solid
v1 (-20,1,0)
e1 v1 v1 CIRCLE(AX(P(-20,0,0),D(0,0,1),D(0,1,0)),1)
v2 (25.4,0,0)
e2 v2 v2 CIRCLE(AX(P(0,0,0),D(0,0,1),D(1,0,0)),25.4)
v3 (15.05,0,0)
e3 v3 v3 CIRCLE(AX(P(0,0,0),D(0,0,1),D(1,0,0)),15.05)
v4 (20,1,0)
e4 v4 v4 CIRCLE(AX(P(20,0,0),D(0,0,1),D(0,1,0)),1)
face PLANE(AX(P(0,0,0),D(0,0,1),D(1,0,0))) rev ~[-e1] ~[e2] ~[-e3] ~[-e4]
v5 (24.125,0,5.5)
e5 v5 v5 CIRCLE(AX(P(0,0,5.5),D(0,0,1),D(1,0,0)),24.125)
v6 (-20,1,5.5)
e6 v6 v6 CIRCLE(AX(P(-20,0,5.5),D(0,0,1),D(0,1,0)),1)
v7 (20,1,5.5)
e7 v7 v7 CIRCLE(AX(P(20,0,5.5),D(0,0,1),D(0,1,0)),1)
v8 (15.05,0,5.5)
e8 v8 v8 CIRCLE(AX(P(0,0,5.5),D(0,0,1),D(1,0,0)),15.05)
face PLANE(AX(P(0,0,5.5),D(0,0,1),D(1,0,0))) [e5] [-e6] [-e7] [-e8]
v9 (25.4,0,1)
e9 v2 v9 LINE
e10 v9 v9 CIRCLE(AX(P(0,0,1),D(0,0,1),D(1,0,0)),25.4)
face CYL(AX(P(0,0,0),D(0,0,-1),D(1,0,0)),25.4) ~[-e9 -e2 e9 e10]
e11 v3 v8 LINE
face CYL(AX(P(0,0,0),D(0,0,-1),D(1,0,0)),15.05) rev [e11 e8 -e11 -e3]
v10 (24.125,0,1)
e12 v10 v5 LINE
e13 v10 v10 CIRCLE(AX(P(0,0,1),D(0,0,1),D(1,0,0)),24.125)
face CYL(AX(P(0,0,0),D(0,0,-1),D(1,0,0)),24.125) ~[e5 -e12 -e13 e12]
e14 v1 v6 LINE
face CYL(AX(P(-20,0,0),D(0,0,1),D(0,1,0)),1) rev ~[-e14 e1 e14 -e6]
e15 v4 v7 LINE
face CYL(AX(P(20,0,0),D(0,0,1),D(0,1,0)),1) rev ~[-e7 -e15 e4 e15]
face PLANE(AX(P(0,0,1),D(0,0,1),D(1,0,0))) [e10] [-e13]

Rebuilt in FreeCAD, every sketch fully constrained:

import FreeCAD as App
import Part
import Sketcher
Q = App.Units.Quantity

doc = App.newDocument("Part")
body = doc.addObject("PartDesign::Body", "Body")

# Sketch on XY plane
sketch1 = doc.addObject("Sketcher::SketchObject", "Sketch")
body.addObject(sketch1)
sketch1.AttachmentSupport = (doc.XY_Plane, [""])
sketch1.MapMode = "FlatFace"
sketch1.addGeometry([
    Part.Circle(App.Vector(0, 0, 0), App.Vector(0, 0, 1), 24),
    Part.Circle(App.Vector(0, 0, 0), App.Vector(0, 0, 1), 15),
], False)
sketch1.addConstraint([
    Sketcher.Constraint("Coincident", 0, 3, -1, 1),
    Sketcher.Constraint("Coincident", 1, 3, -1, 1),
    Sketcher.Constraint("Diameter", 1, Q("30.1 mm")),
    Sketcher.Constraint("Diameter", 0, Q("48.25 mm")),
])
pad1 = doc.addObject("PartDesign::Pad", "Pad")
body.addObject(pad1)
pad1.Profile = sketch1
pad1.Length = 5.5

# Sketch on XY plane
sketch2 = doc.addObject("Sketcher::SketchObject", "Sketch001")
body.addObject(sketch2)
sketch2.AttachmentSupport = (doc.XY_Plane, [""])
sketch2.MapMode = "FlatFace"
sketch2.addGeometry([
    Part.Circle(App.Vector(0, 0, 0), App.Vector(0, 0, 1), 25),
    Part.Circle(App.Vector(0, 0, 0), App.Vector(0, 0, 1), 24),
], False)
sketch2.addConstraint([
    Sketcher.Constraint("Coincident", 0, 3, -1, 1),
    Sketcher.Constraint("Coincident", 1, 3, -1, 1),
    Sketcher.Constraint("Diameter", 0, Q("50.8 mm")),
    Sketcher.Constraint("Diameter", 1, Q("48.25 mm")),
])
pad2 = doc.addObject("PartDesign::Pad", "Pad001")
body.addObject(pad2)
pad2.Profile = sketch2
pad2.Length = 1

# Sketch on XY plane
sketch3 = doc.addObject("Sketcher::SketchObject", "Sketch002")
body.addObject(sketch3)
sketch3.AttachmentSupport = (doc.XY_Plane, [""])
sketch3.MapMode = "FlatFace"
sketch3.addGeometry([
    Part.Circle(App.Vector(-20, 0, 0), App.Vector(0, 0, 1), 1),
    Part.Circle(App.Vector(20, 0, 0), App.Vector(0, 0, 1), 1),
], False)
sketch3.addConstraint([
    Sketcher.Constraint("Equal", 0, 1),
    Sketcher.Constraint("Symmetric", 0, 3, 1, 3, -1, 1),
    Sketcher.Constraint("PointOnObject", 0, 3, -1),
    Sketcher.Constraint("Diameter", 0, Q("2 mm")),
    Sketcher.Constraint("DistanceX", 0, 3, -1, 1, Q("20 mm")),
])
doc.recompute()
hole = doc.addObject("PartDesign::Hole", "Hole")
body.addObject(hole)
hole.Profile = sketch3
hole.ThreadType = "None"
hole.Diameter = 2
hole.DepthType = "ThroughAll"
hole.Reversed = True

doc.recompute()
